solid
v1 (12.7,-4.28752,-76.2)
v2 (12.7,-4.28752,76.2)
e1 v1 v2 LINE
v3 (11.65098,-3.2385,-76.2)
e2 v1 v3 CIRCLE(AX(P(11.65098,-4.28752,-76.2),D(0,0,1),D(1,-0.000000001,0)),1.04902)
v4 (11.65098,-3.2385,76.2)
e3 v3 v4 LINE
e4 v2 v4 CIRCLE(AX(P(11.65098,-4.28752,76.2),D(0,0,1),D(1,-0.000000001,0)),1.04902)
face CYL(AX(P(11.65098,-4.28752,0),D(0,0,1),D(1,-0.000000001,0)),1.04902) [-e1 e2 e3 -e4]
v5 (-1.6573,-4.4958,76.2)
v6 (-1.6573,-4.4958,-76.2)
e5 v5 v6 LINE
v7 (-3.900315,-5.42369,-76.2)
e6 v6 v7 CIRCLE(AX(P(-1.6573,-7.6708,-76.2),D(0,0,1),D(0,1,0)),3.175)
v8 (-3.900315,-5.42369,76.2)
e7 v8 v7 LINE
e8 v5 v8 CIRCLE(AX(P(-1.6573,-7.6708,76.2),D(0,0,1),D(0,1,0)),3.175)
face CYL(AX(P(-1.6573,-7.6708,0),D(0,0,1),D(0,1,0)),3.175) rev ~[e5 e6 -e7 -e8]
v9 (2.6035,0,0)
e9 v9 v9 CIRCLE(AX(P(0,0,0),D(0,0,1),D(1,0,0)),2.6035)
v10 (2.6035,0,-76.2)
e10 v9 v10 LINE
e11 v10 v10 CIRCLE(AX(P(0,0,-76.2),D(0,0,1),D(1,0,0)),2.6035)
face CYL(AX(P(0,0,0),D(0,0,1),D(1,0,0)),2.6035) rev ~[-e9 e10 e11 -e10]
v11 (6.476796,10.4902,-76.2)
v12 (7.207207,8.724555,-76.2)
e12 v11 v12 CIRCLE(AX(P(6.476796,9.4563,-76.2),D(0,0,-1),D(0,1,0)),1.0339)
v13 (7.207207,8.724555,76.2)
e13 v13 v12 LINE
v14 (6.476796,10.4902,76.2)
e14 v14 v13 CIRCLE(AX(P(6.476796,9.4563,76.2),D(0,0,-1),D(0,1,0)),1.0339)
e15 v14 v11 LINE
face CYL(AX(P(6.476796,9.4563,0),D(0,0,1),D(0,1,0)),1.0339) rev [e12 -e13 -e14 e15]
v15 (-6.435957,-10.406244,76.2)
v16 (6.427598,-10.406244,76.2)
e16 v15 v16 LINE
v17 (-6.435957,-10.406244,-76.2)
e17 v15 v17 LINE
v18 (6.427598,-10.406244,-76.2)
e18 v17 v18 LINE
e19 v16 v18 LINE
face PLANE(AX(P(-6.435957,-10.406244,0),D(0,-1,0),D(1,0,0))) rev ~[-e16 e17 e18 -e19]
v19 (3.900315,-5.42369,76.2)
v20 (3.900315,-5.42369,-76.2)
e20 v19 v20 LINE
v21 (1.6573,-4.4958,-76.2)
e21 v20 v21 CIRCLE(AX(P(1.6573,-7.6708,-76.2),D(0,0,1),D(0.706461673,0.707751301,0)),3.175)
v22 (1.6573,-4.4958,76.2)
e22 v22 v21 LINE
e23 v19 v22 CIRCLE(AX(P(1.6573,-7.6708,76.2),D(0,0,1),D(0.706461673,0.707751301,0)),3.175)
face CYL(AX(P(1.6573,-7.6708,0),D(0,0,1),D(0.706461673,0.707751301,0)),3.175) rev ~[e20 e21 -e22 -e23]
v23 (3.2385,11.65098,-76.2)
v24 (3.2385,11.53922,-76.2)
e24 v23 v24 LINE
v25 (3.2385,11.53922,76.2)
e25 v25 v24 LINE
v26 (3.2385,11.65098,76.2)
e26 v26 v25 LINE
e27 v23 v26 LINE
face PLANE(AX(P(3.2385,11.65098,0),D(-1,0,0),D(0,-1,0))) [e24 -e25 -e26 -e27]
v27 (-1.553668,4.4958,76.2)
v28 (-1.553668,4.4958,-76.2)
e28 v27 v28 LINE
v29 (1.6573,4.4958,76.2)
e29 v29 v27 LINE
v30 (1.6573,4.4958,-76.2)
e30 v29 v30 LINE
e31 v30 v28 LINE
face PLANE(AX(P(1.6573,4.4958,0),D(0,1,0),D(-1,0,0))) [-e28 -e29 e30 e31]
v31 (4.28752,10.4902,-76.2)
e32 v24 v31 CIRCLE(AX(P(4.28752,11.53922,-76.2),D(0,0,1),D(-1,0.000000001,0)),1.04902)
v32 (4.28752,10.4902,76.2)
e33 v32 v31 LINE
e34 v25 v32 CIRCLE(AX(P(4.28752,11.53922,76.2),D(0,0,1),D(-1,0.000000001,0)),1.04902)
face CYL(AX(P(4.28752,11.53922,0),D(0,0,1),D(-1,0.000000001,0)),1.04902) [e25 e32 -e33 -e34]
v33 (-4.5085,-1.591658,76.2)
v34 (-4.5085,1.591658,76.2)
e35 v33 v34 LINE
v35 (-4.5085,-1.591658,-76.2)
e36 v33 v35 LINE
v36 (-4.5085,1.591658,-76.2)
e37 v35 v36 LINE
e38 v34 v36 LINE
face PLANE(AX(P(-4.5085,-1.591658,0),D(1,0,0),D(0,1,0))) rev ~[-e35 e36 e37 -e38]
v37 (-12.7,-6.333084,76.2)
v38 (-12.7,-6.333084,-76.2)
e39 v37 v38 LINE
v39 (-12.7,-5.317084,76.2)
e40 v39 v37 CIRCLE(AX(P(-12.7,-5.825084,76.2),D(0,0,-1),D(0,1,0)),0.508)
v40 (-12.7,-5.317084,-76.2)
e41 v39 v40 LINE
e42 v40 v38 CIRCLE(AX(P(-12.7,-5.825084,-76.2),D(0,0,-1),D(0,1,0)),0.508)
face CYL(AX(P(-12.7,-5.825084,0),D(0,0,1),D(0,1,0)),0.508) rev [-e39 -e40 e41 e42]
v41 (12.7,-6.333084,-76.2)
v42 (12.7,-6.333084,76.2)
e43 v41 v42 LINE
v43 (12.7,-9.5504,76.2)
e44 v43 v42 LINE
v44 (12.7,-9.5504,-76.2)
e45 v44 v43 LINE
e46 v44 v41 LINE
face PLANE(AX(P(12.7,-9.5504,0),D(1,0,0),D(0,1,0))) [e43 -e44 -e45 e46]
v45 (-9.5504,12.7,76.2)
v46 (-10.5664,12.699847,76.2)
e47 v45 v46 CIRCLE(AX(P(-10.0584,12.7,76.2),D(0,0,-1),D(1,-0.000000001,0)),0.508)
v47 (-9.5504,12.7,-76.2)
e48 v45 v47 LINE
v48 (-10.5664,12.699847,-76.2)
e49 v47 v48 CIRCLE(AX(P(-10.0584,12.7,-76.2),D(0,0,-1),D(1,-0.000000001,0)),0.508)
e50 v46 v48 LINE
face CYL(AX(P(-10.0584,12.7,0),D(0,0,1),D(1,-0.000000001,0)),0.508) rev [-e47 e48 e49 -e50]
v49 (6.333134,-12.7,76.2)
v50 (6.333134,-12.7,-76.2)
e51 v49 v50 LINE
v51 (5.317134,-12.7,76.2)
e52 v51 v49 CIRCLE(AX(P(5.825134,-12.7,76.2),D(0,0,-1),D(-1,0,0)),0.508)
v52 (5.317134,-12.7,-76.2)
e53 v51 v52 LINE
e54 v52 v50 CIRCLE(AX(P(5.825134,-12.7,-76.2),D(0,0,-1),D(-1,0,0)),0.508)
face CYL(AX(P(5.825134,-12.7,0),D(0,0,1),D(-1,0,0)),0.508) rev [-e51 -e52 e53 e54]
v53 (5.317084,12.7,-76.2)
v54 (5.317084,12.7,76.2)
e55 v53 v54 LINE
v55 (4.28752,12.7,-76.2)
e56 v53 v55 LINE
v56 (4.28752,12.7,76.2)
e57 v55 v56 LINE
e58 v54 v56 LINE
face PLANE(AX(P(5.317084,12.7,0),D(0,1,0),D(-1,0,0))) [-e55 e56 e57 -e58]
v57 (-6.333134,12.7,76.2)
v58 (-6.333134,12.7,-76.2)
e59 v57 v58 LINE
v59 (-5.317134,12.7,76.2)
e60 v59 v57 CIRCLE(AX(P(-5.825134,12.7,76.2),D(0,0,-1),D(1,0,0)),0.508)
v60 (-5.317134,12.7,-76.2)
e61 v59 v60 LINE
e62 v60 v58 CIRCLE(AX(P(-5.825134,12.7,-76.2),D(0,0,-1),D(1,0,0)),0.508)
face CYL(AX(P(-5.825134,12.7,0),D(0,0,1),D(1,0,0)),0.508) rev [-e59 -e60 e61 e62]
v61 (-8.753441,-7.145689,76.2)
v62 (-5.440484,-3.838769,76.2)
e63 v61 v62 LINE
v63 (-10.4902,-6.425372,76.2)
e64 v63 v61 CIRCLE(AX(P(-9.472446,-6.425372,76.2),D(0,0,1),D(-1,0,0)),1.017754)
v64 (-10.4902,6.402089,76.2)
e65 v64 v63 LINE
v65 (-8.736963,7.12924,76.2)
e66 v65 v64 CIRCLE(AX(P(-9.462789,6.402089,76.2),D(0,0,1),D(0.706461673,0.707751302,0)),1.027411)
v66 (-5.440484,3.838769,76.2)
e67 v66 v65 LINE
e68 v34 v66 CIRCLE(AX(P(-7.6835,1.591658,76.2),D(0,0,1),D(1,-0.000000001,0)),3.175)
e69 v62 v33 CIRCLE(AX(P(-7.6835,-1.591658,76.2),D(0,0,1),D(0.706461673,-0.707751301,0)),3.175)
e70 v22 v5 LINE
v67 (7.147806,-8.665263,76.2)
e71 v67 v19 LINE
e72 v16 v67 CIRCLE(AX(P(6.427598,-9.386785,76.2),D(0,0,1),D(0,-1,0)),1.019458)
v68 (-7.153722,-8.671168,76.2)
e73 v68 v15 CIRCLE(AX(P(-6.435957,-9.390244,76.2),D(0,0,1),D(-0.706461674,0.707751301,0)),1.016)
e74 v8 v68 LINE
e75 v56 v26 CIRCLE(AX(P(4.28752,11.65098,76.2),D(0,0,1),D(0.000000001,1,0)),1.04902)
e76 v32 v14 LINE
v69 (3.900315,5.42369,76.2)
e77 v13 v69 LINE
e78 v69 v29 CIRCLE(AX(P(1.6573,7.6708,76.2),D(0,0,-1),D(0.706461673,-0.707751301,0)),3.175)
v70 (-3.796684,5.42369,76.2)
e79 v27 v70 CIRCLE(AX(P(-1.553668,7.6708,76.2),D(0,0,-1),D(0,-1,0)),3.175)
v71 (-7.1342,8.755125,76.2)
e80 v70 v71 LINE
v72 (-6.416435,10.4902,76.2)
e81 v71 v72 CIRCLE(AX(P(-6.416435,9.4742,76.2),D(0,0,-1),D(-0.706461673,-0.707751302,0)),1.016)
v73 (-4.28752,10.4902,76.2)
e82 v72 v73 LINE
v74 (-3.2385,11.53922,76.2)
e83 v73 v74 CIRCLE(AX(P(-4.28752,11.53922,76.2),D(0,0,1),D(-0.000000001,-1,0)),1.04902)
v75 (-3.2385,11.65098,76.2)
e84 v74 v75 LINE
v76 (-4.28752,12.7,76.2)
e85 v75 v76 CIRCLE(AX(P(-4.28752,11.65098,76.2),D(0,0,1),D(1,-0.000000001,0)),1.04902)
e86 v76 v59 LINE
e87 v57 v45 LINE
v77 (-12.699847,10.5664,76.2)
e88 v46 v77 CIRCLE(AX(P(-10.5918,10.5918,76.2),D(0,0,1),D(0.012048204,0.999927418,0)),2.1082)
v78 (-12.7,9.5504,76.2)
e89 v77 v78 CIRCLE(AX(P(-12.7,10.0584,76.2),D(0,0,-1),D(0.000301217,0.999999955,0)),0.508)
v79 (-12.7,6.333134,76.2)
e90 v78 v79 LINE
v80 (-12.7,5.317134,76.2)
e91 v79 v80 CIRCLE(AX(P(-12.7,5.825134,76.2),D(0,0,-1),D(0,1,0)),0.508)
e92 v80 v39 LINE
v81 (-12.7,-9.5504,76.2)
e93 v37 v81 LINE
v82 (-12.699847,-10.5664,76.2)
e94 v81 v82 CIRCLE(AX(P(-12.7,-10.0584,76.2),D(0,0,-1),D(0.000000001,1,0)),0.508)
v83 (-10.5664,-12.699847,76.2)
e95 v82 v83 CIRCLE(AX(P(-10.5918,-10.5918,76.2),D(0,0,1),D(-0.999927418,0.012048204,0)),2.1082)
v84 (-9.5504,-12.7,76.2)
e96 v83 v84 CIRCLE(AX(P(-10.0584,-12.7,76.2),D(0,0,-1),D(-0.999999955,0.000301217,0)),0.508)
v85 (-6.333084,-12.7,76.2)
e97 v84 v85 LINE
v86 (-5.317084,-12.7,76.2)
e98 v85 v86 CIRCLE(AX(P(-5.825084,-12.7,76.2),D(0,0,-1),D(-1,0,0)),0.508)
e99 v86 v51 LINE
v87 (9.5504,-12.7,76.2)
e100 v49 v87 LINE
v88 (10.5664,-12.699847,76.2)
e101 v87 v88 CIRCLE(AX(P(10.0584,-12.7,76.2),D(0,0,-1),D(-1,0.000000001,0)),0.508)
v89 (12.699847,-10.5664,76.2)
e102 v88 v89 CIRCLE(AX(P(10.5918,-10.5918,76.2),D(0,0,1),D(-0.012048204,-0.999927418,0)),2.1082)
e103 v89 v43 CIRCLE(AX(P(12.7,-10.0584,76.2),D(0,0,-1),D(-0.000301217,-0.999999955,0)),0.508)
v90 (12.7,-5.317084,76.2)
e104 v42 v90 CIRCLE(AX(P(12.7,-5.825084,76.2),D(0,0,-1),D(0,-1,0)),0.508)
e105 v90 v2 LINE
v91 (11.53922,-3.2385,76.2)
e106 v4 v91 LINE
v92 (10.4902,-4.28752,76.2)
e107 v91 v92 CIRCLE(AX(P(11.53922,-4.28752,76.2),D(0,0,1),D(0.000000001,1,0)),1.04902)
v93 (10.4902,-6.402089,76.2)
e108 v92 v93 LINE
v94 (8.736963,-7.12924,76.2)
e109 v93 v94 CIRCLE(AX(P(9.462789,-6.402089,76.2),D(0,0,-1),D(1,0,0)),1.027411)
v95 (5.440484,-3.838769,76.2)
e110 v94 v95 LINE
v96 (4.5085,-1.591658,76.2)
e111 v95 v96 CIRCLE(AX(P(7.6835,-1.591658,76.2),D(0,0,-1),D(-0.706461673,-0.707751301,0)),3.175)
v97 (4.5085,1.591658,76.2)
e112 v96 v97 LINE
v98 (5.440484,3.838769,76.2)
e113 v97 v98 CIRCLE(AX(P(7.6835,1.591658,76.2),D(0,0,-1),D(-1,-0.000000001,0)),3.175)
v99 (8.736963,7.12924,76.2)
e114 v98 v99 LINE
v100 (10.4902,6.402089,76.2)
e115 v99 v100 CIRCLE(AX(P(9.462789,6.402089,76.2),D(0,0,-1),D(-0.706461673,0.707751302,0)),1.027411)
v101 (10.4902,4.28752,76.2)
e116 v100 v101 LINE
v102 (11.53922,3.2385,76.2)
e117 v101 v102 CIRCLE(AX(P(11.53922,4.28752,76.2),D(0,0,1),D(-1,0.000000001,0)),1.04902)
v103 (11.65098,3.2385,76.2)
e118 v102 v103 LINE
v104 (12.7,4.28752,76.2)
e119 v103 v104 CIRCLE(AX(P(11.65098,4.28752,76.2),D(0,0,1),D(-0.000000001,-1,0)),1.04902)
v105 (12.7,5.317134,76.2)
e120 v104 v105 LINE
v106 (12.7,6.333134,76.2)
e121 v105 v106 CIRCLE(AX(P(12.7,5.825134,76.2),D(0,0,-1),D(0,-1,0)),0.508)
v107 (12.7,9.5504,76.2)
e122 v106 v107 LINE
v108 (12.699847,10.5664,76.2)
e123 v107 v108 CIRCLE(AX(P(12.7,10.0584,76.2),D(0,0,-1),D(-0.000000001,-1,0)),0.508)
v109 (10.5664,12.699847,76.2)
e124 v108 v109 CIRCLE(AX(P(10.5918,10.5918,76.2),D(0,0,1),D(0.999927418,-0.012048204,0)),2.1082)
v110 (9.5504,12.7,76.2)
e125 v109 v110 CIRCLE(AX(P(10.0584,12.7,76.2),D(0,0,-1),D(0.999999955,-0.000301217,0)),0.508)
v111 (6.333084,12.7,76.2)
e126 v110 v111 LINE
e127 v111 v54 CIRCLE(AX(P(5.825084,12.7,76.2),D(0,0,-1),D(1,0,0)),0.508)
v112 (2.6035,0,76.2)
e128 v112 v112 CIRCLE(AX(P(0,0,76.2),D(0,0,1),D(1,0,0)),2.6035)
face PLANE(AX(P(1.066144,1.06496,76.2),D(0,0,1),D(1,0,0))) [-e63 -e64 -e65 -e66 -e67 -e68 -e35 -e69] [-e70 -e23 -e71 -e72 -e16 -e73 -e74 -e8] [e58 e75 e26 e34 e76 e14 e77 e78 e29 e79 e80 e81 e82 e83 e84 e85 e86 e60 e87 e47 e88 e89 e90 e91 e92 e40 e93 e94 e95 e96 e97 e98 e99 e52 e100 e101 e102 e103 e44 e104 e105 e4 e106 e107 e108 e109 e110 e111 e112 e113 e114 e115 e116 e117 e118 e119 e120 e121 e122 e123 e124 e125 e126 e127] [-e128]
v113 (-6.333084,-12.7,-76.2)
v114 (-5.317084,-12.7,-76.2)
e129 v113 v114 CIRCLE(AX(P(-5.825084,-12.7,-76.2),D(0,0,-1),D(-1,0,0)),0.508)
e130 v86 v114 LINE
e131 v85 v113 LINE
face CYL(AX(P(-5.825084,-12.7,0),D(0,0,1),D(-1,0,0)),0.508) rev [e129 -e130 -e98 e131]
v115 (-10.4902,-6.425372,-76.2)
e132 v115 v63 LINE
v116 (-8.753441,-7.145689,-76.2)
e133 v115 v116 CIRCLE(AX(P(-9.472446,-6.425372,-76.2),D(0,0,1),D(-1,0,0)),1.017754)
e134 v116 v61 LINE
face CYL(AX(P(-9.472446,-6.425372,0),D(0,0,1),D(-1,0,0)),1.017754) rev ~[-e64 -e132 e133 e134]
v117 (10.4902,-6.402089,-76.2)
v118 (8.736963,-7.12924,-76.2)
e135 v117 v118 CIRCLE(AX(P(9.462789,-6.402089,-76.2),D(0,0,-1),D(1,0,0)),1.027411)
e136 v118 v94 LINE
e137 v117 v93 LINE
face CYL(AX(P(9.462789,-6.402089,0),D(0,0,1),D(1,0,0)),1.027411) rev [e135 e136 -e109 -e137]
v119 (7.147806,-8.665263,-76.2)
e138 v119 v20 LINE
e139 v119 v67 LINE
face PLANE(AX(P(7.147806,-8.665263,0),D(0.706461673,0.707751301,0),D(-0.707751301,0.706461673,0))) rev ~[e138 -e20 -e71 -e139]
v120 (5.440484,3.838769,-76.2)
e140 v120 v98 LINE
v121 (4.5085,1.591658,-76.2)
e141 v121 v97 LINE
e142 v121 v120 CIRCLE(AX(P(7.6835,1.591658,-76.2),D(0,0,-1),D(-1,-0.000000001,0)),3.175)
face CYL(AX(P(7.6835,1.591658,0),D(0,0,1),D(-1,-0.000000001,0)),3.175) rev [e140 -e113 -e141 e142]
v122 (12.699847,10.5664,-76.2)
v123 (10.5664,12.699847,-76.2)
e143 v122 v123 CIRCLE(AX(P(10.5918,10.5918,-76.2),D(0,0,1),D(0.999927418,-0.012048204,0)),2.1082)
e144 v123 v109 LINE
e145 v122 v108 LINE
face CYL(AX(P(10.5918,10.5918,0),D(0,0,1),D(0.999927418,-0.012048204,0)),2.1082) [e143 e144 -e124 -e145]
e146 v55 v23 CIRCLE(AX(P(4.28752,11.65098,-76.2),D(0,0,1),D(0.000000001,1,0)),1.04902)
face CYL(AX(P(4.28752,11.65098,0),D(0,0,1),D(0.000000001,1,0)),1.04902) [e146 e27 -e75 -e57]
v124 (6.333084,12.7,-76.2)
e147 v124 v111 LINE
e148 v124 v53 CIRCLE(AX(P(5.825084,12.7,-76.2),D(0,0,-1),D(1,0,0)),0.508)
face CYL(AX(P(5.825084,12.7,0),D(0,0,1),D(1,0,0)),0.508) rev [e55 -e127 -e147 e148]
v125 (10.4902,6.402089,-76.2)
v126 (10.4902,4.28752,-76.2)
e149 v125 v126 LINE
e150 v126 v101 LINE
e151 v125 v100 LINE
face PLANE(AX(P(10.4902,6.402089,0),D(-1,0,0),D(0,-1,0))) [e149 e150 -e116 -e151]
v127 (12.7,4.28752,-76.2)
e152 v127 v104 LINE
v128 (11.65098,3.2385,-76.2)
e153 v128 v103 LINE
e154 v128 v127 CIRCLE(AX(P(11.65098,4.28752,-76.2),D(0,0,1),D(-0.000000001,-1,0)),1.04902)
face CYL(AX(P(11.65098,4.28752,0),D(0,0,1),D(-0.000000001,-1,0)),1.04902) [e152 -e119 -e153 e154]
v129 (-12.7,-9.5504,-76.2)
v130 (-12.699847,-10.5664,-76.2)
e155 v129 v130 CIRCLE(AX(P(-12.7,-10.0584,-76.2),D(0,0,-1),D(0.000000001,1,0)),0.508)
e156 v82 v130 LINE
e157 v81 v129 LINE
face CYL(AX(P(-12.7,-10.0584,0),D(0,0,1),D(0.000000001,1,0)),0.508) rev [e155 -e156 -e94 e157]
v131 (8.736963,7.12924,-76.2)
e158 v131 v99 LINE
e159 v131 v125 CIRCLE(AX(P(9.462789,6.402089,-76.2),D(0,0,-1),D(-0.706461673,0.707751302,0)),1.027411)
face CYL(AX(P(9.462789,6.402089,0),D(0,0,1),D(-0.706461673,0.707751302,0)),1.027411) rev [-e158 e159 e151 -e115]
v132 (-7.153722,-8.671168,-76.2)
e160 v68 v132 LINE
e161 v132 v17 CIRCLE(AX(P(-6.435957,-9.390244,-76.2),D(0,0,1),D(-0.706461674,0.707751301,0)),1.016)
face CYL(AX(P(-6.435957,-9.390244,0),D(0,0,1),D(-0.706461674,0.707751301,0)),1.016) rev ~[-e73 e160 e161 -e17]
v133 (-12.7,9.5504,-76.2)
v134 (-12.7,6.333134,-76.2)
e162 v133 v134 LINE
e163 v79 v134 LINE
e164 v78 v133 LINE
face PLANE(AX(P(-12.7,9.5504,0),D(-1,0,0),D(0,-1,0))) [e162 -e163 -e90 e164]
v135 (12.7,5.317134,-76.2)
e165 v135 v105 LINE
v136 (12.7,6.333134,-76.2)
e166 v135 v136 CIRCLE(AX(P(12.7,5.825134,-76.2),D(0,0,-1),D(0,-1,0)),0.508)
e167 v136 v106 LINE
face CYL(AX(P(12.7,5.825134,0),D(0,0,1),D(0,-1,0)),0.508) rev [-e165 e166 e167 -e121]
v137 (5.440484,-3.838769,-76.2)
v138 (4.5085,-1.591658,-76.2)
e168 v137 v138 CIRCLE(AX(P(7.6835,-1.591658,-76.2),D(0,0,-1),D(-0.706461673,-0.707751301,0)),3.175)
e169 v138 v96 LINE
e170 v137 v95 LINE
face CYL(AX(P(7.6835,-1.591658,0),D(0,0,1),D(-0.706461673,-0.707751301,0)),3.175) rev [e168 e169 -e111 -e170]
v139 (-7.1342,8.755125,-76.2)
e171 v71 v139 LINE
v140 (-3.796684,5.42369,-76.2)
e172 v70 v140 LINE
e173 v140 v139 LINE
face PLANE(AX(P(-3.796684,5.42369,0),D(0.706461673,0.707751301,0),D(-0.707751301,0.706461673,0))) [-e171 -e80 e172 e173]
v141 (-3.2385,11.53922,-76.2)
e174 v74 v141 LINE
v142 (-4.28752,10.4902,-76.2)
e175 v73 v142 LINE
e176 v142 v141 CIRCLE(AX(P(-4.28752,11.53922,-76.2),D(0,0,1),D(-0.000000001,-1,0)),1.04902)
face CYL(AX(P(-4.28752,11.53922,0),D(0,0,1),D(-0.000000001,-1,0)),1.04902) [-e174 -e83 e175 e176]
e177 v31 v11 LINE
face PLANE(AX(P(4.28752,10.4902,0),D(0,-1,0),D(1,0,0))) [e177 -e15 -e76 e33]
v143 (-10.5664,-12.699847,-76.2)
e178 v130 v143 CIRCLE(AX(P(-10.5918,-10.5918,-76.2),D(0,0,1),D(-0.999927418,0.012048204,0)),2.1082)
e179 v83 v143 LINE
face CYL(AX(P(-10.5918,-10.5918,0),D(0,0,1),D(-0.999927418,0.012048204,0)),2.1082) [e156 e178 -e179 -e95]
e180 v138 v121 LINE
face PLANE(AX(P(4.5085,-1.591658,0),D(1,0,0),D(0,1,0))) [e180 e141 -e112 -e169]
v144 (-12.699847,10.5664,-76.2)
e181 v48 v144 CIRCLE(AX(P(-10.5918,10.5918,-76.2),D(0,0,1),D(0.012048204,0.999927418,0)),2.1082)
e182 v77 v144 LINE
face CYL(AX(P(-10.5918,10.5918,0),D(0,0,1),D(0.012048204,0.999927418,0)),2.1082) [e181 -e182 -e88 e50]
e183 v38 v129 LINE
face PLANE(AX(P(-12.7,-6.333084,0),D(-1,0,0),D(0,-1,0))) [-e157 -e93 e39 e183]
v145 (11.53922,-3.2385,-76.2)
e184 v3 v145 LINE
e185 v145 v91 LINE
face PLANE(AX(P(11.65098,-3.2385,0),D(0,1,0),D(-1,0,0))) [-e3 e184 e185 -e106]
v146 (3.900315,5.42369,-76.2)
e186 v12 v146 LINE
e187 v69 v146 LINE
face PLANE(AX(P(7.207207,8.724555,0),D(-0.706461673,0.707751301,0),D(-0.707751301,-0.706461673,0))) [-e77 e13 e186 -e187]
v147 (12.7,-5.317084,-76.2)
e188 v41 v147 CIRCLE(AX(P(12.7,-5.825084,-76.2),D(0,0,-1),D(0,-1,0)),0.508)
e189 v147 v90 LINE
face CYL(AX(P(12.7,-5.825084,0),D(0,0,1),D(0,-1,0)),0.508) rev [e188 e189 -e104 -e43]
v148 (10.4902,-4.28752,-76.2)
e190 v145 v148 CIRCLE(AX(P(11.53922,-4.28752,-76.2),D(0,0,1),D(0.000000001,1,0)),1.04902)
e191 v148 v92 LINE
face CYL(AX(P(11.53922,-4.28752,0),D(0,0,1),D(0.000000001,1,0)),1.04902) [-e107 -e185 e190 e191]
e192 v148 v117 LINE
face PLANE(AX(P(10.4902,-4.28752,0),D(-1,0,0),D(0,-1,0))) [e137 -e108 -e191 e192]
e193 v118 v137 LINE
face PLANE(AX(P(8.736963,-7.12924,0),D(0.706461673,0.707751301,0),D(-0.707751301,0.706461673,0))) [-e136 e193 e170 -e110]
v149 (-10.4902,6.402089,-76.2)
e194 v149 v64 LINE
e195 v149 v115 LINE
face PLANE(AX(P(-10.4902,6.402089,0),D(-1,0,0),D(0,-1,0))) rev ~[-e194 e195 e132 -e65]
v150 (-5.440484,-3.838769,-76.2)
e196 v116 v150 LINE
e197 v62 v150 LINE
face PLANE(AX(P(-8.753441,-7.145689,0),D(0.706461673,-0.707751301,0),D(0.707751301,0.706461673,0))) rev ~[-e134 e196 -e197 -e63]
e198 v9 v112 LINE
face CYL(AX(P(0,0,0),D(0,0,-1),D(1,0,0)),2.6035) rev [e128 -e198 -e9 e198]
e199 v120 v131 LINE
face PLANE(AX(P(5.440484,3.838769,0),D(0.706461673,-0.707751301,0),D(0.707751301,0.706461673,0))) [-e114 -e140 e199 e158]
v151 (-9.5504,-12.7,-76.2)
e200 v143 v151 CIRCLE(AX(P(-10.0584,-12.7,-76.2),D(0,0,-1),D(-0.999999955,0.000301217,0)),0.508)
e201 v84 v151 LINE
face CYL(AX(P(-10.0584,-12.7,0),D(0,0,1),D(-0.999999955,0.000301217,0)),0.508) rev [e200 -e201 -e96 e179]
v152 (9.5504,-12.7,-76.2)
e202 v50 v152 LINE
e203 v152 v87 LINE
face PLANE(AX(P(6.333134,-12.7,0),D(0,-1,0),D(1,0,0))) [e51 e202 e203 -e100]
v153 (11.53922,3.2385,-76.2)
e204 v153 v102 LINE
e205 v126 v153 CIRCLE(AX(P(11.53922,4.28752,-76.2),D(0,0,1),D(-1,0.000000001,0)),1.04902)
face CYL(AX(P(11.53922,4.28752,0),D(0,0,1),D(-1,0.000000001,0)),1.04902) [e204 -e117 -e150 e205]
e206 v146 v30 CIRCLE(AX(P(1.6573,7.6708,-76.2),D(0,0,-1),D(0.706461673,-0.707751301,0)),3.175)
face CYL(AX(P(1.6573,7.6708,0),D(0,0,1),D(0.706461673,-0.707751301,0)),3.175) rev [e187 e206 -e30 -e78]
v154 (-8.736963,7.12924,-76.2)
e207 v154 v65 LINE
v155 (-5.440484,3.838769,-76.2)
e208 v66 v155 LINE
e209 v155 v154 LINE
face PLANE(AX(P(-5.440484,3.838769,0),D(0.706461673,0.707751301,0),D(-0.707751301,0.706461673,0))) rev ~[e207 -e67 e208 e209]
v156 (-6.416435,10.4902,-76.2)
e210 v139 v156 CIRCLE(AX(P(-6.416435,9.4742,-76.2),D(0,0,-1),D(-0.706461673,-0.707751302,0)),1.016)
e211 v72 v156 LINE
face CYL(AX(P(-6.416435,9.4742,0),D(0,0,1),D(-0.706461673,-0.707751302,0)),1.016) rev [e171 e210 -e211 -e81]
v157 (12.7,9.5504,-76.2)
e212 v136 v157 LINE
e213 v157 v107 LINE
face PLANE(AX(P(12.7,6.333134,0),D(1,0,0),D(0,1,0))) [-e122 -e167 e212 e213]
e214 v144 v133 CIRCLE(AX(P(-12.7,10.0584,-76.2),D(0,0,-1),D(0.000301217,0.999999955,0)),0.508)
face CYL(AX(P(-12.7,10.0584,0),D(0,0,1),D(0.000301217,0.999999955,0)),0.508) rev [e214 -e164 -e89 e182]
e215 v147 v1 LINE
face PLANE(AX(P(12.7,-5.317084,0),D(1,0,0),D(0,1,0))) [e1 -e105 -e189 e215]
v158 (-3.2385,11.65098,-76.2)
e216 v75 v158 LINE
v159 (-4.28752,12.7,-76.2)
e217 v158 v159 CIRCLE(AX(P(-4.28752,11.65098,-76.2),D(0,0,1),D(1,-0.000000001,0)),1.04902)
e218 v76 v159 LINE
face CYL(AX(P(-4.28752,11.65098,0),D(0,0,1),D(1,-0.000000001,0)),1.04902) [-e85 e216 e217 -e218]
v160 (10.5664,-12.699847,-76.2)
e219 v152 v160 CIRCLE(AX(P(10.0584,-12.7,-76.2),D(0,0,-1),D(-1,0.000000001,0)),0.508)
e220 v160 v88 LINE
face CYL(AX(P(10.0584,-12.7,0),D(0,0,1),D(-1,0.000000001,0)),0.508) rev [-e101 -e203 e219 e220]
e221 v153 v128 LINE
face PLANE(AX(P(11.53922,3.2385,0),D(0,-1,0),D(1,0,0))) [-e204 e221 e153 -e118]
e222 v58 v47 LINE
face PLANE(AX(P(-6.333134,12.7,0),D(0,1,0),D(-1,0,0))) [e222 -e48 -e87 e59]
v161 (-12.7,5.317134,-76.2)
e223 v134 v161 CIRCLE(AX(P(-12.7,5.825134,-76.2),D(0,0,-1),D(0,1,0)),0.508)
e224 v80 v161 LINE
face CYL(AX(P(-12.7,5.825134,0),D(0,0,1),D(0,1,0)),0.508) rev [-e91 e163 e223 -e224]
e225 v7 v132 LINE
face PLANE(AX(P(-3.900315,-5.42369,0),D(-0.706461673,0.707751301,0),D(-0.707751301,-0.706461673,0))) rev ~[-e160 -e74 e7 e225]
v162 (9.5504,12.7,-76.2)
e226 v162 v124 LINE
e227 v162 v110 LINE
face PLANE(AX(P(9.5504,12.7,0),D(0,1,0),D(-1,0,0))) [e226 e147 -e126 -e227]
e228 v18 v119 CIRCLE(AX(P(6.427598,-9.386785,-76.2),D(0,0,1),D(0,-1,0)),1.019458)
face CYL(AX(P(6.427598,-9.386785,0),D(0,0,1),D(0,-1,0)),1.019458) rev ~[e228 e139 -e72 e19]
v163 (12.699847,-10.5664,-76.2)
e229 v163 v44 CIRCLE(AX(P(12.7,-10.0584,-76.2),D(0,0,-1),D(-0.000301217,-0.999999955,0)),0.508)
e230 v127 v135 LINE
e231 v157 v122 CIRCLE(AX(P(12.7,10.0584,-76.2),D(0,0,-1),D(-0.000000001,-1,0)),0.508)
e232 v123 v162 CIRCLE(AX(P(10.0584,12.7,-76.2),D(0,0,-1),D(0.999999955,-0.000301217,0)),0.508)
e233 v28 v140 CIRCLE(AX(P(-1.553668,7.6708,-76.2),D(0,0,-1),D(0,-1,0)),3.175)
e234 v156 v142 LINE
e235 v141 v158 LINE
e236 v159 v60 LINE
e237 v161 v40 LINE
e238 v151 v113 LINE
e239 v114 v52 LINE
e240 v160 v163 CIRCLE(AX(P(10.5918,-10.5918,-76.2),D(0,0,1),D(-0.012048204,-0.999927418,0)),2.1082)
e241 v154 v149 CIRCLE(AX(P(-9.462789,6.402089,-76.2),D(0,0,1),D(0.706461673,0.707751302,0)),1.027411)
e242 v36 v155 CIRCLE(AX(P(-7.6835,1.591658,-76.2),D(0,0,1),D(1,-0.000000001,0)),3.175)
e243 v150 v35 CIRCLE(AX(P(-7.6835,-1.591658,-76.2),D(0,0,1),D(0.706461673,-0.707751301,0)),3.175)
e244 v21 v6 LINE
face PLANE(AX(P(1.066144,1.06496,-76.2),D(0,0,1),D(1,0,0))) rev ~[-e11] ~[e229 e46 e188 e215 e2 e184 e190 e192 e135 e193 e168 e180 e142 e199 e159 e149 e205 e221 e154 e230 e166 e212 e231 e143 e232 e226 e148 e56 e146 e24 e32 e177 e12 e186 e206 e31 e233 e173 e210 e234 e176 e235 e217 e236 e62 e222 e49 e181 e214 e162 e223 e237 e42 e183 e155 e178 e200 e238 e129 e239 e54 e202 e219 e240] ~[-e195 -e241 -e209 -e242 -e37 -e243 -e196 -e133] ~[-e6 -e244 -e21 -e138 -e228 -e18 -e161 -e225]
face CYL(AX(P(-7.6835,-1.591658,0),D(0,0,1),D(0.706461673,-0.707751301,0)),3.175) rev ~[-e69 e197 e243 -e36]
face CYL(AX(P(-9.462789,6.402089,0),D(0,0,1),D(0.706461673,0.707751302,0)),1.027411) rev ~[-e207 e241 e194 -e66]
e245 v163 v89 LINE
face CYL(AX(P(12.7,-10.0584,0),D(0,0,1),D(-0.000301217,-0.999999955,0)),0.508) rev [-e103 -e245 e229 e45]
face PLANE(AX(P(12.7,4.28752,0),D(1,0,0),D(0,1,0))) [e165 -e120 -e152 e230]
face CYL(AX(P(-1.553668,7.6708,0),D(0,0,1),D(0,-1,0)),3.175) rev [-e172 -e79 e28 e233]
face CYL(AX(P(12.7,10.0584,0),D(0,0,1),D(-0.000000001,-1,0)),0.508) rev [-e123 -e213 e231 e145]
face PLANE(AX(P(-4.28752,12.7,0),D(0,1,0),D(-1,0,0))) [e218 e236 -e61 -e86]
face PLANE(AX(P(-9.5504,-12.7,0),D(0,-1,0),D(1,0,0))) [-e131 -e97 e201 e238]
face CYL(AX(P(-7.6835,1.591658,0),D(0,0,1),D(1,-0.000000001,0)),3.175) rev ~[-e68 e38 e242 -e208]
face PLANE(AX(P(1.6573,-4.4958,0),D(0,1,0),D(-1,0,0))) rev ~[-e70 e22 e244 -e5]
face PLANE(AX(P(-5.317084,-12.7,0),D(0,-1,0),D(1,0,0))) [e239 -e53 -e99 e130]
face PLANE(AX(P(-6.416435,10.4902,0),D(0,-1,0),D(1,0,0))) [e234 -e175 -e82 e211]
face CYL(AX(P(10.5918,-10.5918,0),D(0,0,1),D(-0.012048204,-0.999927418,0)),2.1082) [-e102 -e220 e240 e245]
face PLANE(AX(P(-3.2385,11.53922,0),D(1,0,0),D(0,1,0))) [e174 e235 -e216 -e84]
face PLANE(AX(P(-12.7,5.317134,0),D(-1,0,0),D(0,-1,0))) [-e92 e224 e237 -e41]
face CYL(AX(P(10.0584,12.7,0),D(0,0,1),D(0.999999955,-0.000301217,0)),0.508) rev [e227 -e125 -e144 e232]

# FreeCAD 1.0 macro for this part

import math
import FreeCAD as App
import Part
import Sketcher
Q = App.Units.Quantity

doc = App.newDocument("Part")
body = doc.addObject("PartDesign::Body", "Body")

# Sketch on XY plane
sketch1 = body.newObject("Sketcher::SketchObject", "Sketch")
sketch1.AttachmentSupport = (doc.getObject("XY_Plane"), [""])
sketch1.MapMode = "FlatFace"
sketch1.addGeometry([
    Part.LineSegment(App.Vector(6.33, -12.7, 0), App.Vector(9.55, -12.7, 0)),  # 0
    Part.ArcOfCircle(Part.Circle(App.Vector(10.06, -12.7, 0), App.Vector(0, 0, 1), 0.51), math.radians(0), math.radians(180)),  # 1
    Part.ArcOfCircle(Part.Circle(App.Vector(10.59, -10.59, 0), App.Vector(0, 0, 1), 2.11), math.radians(-91), math.radians(1)),  # 2
    Part.ArcOfCircle(Part.Circle(App.Vector(12.7, -10.06, 0), App.Vector(0, 0, 1), 0.51), math.radians(90), math.radians(270)),  # 3
    Part.LineSegment(App.Vector(12.7, -9.55, 0), App.Vector(12.7, -6.33, 0)),  # 4
    Part.ArcOfCircle(Part.Circle(App.Vector(12.7, -5.83, 0), App.Vector(0, 0, 1), 0.51), math.radians(90), math.radians(270)),  # 5
    Part.LineSegment(App.Vector(12.7, -5.32, 0), App.Vector(12.7, -4.29, 0)),  # 6
    Part.ArcOfCircle(Part.Circle(App.Vector(11.65, -4.29, 0), App.Vector(0, 0, 1), 1.05), math.radians(0), math.radians(90)),  # 7
    Part.LineSegment(App.Vector(11.65, -3.24, 0), App.Vector(11.54, -3.24, 0)),  # 8
    Part.ArcOfCircle(Part.Circle(App.Vector(11.54, -4.29, 0), App.Vector(0, 0, 1), 1.05), math.radians(90), math.radians(180)),  # 9
    Part.LineSegment(App.Vector(10.49, -4.29, 0), App.Vector(10.49, -6.4, 0)),  # 10
    Part.ArcOfCircle(Part.Circle(App.Vector(9.46, -6.4, 0), App.Vector(0, 0, 1), 1.03), math.radians(-135), math.radians(0)),  # 11
    Part.LineSegment(App.Vector(8.74, -7.13, 0), App.Vector(5.44, -3.84, 0)),  # 12
    Part.ArcOfCircle(Part.Circle(App.Vector(7.68, -1.59, 0), App.Vector(0, 0, 1), 3.17), math.radians(180), math.radians(225)),  # 13
    Part.LineSegment(App.Vector(4.51, -1.59, 0), App.Vector(4.51, 1.59, 0)),  # 14
    Part.ArcOfCircle(Part.Circle(App.Vector(7.68, 1.59, 0), App.Vector(0, 0, 1), 3.17), math.radians(135), math.radians(180)),  # 15
    Part.LineSegment(App.Vector(5.44, 3.84, 0), App.Vector(8.74, 7.13, 0)),  # 16
    Part.ArcOfCircle(Part.Circle(App.Vector(9.46, 6.4, 0), App.Vector(0, 0, 1), 1.03), math.radians(0), math.radians(135)),  # 17
    Part.LineSegment(App.Vector(10.49, 6.4, 0), App.Vector(10.49, 4.29, 0)),  # 18
    Part.ArcOfCircle(Part.Circle(App.Vector(11.54, 4.29, 0), App.Vector(0, 0, 1), 1.05), math.radians(180), math.radians(270)),  # 19
    Part.LineSegment(App.Vector(11.54, 3.24, 0), App.Vector(11.65, 3.24, 0)),  # 20
    Part.ArcOfCircle(Part.Circle(App.Vector(11.65, 4.29, 0), App.Vector(0, 0, 1), 1.05), math.radians(-90), math.radians(0)),  # 21
    Part.LineSegment(App.Vector(12.7, 4.29, 0), App.Vector(12.7, 5.32, 0)),  # 22
    Part.ArcOfCircle(Part.Circle(App.Vector(12.7, 5.83, 0), App.Vector(0, 0, 1), 0.51), math.radians(90), math.radians(270)),  # 23
    Part.LineSegment(App.Vector(12.7, 6.33, 0), App.Vector(12.7, 9.55, 0)),  # 24
    Part.ArcOfCircle(Part.Circle(App.Vector(12.7, 10.06, 0), App.Vector(0, 0, 1), 0.51), math.radians(90), math.radians(270)),  # 25
    Part.ArcOfCircle(Part.Circle(App.Vector(10.59, 10.59, 0), App.Vector(0, 0, 1), 2.11), math.radians(-1), math.radians(91)),  # 26
    Part.ArcOfCircle(Part.Circle(App.Vector(10.06, 12.7, 0), App.Vector(0, 0, 1), 0.51), math.radians(180), math.radians(360)),  # 27
    Part.LineSegment(App.Vector(9.55, 12.7, 0), App.Vector(6.33, 12.7, 0)),  # 28
    Part.ArcOfCircle(Part.Circle(App.Vector(5.83, 12.7, 0), App.Vector(0, 0, 1), 0.51), math.radians(180), math.radians(360)),  # 29
    Part.LineSegment(App.Vector(5.32, 12.7, 0), App.Vector(4.29, 12.7, 0)),  # 30
    Part.ArcOfCircle(Part.Circle(App.Vector(4.29, 11.65, 0), App.Vector(0, 0, 1), 1.05), math.radians(90), math.radians(180)),  # 31
    Part.LineSegment(App.Vector(3.24, 11.65, 0), App.Vector(3.24, 11.54, 0)),  # 32
    Part.ArcOfCircle(Part.Circle(App.Vector(4.29, 11.54, 0), App.Vector(0, 0, 1), 1.05), math.radians(180), math.radians(270)),  # 33
    Part.LineSegment(App.Vector(4.29, 10.49, 0), App.Vector(6.48, 10.49, 0)),  # 34
    Part.ArcOfCircle(Part.Circle(App.Vector(6.48, 9.46, 0), App.Vector(0, 0, 1), 1.03), math.radians(-45), math.radians(90)),  # 35
    Part.LineSegment(App.Vector(7.21, 8.72, 0), App.Vector(3.9, 5.42, 0)),  # 36
    Part.ArcOfCircle(Part.Circle(App.Vector(1.66, 7.67, 0), App.Vector(0, 0, 1), 3.17), math.radians(-90), math.radians(-45)),  # 37
    Part.LineSegment(App.Vector(1.66, 4.5, 0), App.Vector(-1.55, 4.5, 0)),  # 38
    Part.ArcOfCircle(Part.Circle(App.Vector(-1.55, 7.67, 0), App.Vector(0, 0, 1), 3.17), math.radians(-135), math.radians(-90)),  # 39
    Part.LineSegment(App.Vector(-3.8, 5.42, 0), App.Vector(-7.13, 8.76, 0)),  # 40
    Part.ArcOfCircle(Part.Circle(App.Vector(-6.42, 9.47, 0), App.Vector(0, 0, 1), 1.02), math.radians(90), math.radians(225)),  # 41
    Part.LineSegment(App.Vector(-6.42, 10.49, 0), App.Vector(-4.29, 10.49, 0)),  # 42
    Part.ArcOfCircle(Part.Circle(App.Vector(-4.29, 11.54, 0), App.Vector(0, 0, 1), 1.05), math.radians(-90), math.radians(0)),  # 43
    Part.LineSegment(App.Vector(-3.24, 11.54, 0), App.Vector(-3.24, 11.65, 0)),  # 44
    Part.ArcOfCircle(Part.Circle(App.Vector(-4.29, 11.65, 0), App.Vector(0, 0, 1), 1.05), math.radians(0), math.radians(90)),  # 45
    Part.LineSegment(App.Vector(-4.29, 12.7, 0), App.Vector(-5.32, 12.7, 0)),  # 46
    Part.ArcOfCircle(Part.Circle(App.Vector(-5.83, 12.7, 0), App.Vector(0, 0, 1), 0.51), math.radians(180), math.radians(360)),  # 47
    Part.LineSegment(App.Vector(-6.33, 12.7, 0), App.Vector(-9.55, 12.7, 0)),  # 48
    Part.ArcOfCircle(Part.Circle(App.Vector(-10.06, 12.7, 0), App.Vector(0, 0, 1), 0.51), math.radians(-180), math.radians(0)),  # 49
    Part.ArcOfCircle(Part.Circle(App.Vector(-10.59, 10.59, 0), App.Vector(0, 0, 1), 2.11), math.radians(89), math.radians(181)),  # 50
    Part.ArcOfCircle(Part.Circle(App.Vector(-12.7, 10.06, 0), App.Vector(0, 0, 1), 0.51), math.radians(-90), math.radians(90)),  # 51
    Part.LineSegment(App.Vector(-12.7, 9.55, 0), App.Vector(-12.7, 6.33, 0)),  # 52
    Part.ArcOfCircle(Part.Circle(App.Vector(-12.7, 5.83, 0), App.Vector(0, 0, 1), 0.51), math.radians(-90), math.radians(90)),  # 53
    Part.LineSegment(App.Vector(-12.7, 5.32, 0), App.Vector(-12.7, -5.32, 0)),  # 54
    Part.ArcOfCircle(Part.Circle(App.Vector(-12.7, -5.83, 0), App.Vector(0, 0, 1), 0.51), math.radians(-90), math.radians(90)),  # 55
    Part.LineSegment(App.Vector(-12.7, -6.33, 0), App.Vector(-12.7, -9.55, 0)),  # 56
    Part.ArcOfCircle(Part.Circle(App.Vector(-12.7, -10.06, 0), App.Vector(0, 0, 1), 0.51), math.radians(-90), math.radians(90)),  # 57
    Part.ArcOfCircle(Part.Circle(App.Vector(-10.59, -10.59, 0), App.Vector(0, 0, 1), 2.11), math.radians(179), math.radians(271)),  # 58
    Part.ArcOfCircle(Part.Circle(App.Vector(-10.06, -12.7, 0), App.Vector(0, 0, 1), 0.51), math.radians(0), math.radians(180)),  # 59
    Part.LineSegment(App.Vector(-9.55, -12.7, 0), App.Vector(-6.33, -12.7, 0)),  # 60
    Part.ArcOfCircle(Part.Circle(App.Vector(-5.83, -12.7, 0), App.Vector(0, 0, 1), 0.51), math.radians(0), math.radians(180)),  # 61
    Part.LineSegment(App.Vector(-5.32, -12.7, 0), App.Vector(5.32, -12.7, 0)),  # 62
    Part.ArcOfCircle(Part.Circle(App.Vector(5.83, -12.7, 0), App.Vector(0, 0, 1), 0.51), math.radians(0), math.radians(180)),  # 63
    Part.LineSegment(App.Vector(3.9, -5.42, 0), App.Vector(7.15, -8.67, 0)),  # 64
    Part.ArcOfCircle(Part.Circle(App.Vector(6.43, -9.39, 0), App.Vector(0, 0, 1), 1.02), math.radians(-90), math.radians(45)),  # 65
    Part.LineSegment(App.Vector(6.43, -10.41, 0), App.Vector(-6.44, -10.41, 0)),  # 66
    Part.ArcOfCircle(Part.Circle(App.Vector(-6.44, -9.39, 0), App.Vector(0, 0, 1), 1.02), math.radians(135), math.radians(270)),  # 67
    Part.LineSegment(App.Vector(-7.15, -8.67, 0), App.Vector(-3.9, -5.42, 0)),  # 68
    Part.ArcOfCircle(Part.Circle(App.Vector(-1.66, -7.67, 0), App.Vector(0, 0, 1), 3.17), math.radians(90), math.radians(135)),  # 69
    Part.LineSegment(App.Vector(-1.66, -4.5, 0), App.Vector(1.66, -4.5, 0)),  # 70
    Part.ArcOfCircle(Part.Circle(App.Vector(1.66, -7.67, 0), App.Vector(0, 0, 1), 3.17), math.radians(45), math.radians(90)),  # 71
    Part.LineSegment(App.Vector(-5.44, -3.84, 0), App.Vector(-8.75, -7.15, 0)),  # 72
    Part.ArcOfCircle(Part.Circle(App.Vector(-9.47, -6.43, 0), App.Vector(0, 0, 1), 1.02), math.radians(180), math.radians(315)),  # 73
    Part.LineSegment(App.Vector(-10.49, -6.43, 0), App.Vector(-10.49, 6.4, 0)),  # 74
    Part.ArcOfCircle(Part.Circle(App.Vector(-9.46, 6.4, 0), App.Vector(0, 0, 1), 1.03), math.radians(45), math.radians(180)),  # 75
    Part.LineSegment(App.Vector(-8.74, 7.13, 0), App.Vector(-5.44, 3.84, 0)),  # 76
    Part.ArcOfCircle(Part.Circle(App.Vector(-7.68, 1.59, 0), App.Vector(0, 0, 1), 3.17), math.radians(0), math.radians(45)),  # 77
    Part.LineSegment(App.Vector(-4.51, 1.59, 0), App.Vector(-4.51, -1.59, 0)),  # 78
    Part.ArcOfCircle(Part.Circle(App.Vector(-7.68, -1.59, 0), App.Vector(0, 0, 1), 3.17), math.radians(-45), math.radians(0)),  # 79
    Part.Circle(App.Vector(0, 0, 0), App.Vector(0, 0, 1), 2.6),  # 80
], False)
sketch1.addConstraint([
    Sketcher.Constraint("Coincident", 0, 2, 1, 2),
    Sketcher.Constraint("Coincident", 1, 1, 2, 1),
    Sketcher.Constraint("Coincident", 2, 2, 3, 2),
    Sketcher.Constraint("Coincident", 3, 1, 4, 1),
    Sketcher.Constraint("Coincident", 4, 2, 5, 2),
    Sketcher.Constraint("Coincident", 5, 1, 6, 1),
    Sketcher.Constraint("Tangent", 6, 2, 7, 1),
    Sketcher.Constraint("Tangent", 7, 2, 8, 1),
    Sketcher.Constraint("Tangent", 8, 2, 9, 1),
    Sketcher.Constraint("Tangent", 9, 2, 10, 1),
    Sketcher.Constraint("Tangent", 10, 2, 11, 2),
    Sketcher.Constraint("Tangent", 11, 1, 12, 1),
    Sketcher.Constraint("Tangent", 12, 2, 13, 2),
    Sketcher.Constraint("Tangent", 13, 1, 14, 1),
    Sketcher.Constraint("Tangent", 14, 2, 15, 2),
    Sketcher.Constraint("Tangent", 15, 1, 16, 1),
    Sketcher.Constraint("Tangent", 16, 2, 17, 2),
    Sketcher.Constraint("Tangent", 17, 1, 18, 1),
    Sketcher.Constraint("Tangent", 18, 2, 19, 1),
    Sketcher.Constraint("Tangent", 19, 2, 20, 1),
    Sketcher.Constraint("Tangent", 20, 2, 21, 1),
    Sketcher.Constraint("Tangent", 21, 2, 22, 1),
    Sketcher.Constraint("Coincident", 22, 2, 23, 2),
    Sketcher.Constraint("Coincident", 23, 1, 24, 1),
    Sketcher.Constraint("Coincident", 24, 2, 25, 2),
    Sketcher.Constraint("Coincident", 25, 1, 26, 1),
    Sketcher.Constraint("Coincident", 26, 2, 27, 2),
    Sketcher.Constraint("Coincident", 27, 1, 28, 1),
    Sketcher.Constraint("Coincident", 28, 2, 29, 2),
    Sketcher.Constraint("Coincident", 29, 1, 30, 1),
    Sketcher.Constraint("Tangent", 30, 2, 31, 1),
    Sketcher.Constraint("Tangent", 31, 2, 32, 1),
    Sketcher.Constraint("Tangent", 32, 2, 33, 1),
    Sketcher.Constraint("Tangent", 33, 2, 34, 1),
    Sketcher.Constraint("Tangent", 34, 2, 35, 2),
    Sketcher.Constraint("Tangent", 35, 1, 36, 1),
    Sketcher.Constraint("Tangent", 36, 2, 37, 2),
    Sketcher.Constraint("Tangent", 37, 1, 38, 1),
    Sketcher.Constraint("Tangent", 38, 2, 39, 2),
    Sketcher.Constraint("Tangent", 39, 1, 40, 1),
    Sketcher.Constraint("Tangent", 40, 2, 41, 2),
    Sketcher.Constraint("Tangent", 41, 1, 42, 1),
    Sketcher.Constraint("Tangent", 42, 2, 43, 1),
    Sketcher.Constraint("Tangent", 43, 2, 44, 1),
    Sketcher.Constraint("Tangent", 44, 2, 45, 1),
    Sketcher.Constraint("Tangent", 45, 2, 46, 1),
    Sketcher.Constraint("Coincident", 46, 2, 47, 2),
    Sketcher.Constraint("Coincident", 47, 1, 48, 1),
    Sketcher.Constraint("Coincident", 48, 2, 49, 2),
    Sketcher.Constraint("Coincident", 49, 1, 50, 1),
    Sketcher.Constraint("Coincident", 50, 2, 51, 2),
    Sketcher.Constraint("Coincident", 51, 1, 52, 1),
    Sketcher.Constraint("Coincident", 52, 2, 53, 2),
    Sketcher.Constraint("Coincident", 53, 1, 54, 1),
    Sketcher.Constraint("Coincident", 54, 2, 55, 2),
    Sketcher.Constraint("Coincident", 55, 1, 56, 1),
    Sketcher.Constraint("Coincident", 56, 2, 57, 2),
    Sketcher.Constraint("Coincident", 57, 1, 58, 1),
    Sketcher.Constraint("Coincident", 58, 2, 59, 2),
    Sketcher.Constraint("Coincident", 59, 1, 60, 1),
    Sketcher.Constraint("Coincident", 60, 2, 61, 2),
    Sketcher.Constraint("Coincident", 61, 1, 62, 1),
    Sketcher.Constraint("Coincident", 62, 2, 63, 2),
    Sketcher.Constraint("Coincident", 63, 1, 0, 1),
    Sketcher.Constraint("Tangent", 64, 2, 65, 2),
    Sketcher.Constraint("Tangent", 65, 1, 66, 1),
    Sketcher.Constraint("Tangent", 66, 2, 67, 2),
    Sketcher.Constraint("Tangent", 67, 1, 68, 1),
    Sketcher.Constraint("Tangent", 68, 2, 69, 2),
    Sketcher.Constraint("Tangent", 69, 1, 70, 1),
    Sketcher.Constraint("Tangent", 70, 2, 71, 2),
    Sketcher.Constraint("Tangent", 71, 1, 64, 1),
    Sketcher.Constraint("Tangent", 72, 2, 73, 2),
    Sketcher.Constraint("Tangent", 73, 1, 74, 1),
    Sketcher.Constraint("Tangent", 74, 2, 75, 2),
    Sketcher.Constraint("Tangent", 75, 1, 76, 1),
    Sketcher.Constraint("Tangent", 76, 2, 77, 2),
    Sketcher.Constraint("Tangent", 77, 1, 78, 1),
    Sketcher.Constraint("Tangent", 78, 2, 79, 2),
    Sketcher.Constraint("Tangent", 79, 1, 72, 1),
    Sketcher.Constraint("Horizontal", 0),
    Sketcher.Constraint("Vertical", 4),
    Sketcher.Constraint("Vertical", 6),
    Sketcher.Constraint("Horizontal", 8),
    Sketcher.Constraint("Vertical", 10),
    Sketcher.Constraint("Vertical", 14),
    Sketcher.Constraint("Vertical", 18),
    Sketcher.Constraint("Horizontal", 20),
    Sketcher.Constraint("Vertical", 22),
    Sketcher.Constraint("Vertical", 24),
    Sketcher.Constraint("Horizontal", 28),
    Sketcher.Constraint("Horizontal", 30),
    Sketcher.Constraint("Vertical", 32),
    Sketcher.Constraint("Horizontal", 34),
    Sketcher.Constraint("Horizontal", 38),
    Sketcher.Constraint("Horizontal", 42),
    Sketcher.Constraint("Vertical", 44),
    Sketcher.Constraint("Horizontal", 46),
    Sketcher.Constraint("Horizontal", 48),
    Sketcher.Constraint("Vertical", 52),
    Sketcher.Constraint("Vertical", 54),
    Sketcher.Constraint("Vertical", 56),
    Sketcher.Constraint("Horizontal", 60),
    Sketcher.Constraint("Horizontal", 62),
    Sketcher.Constraint("Horizontal", 66),
    Sketcher.Constraint("Horizontal", 70),
    Sketcher.Constraint("Vertical", 74),
    Sketcher.Constraint("Vertical", 78),
    Sketcher.Constraint("Coincident", 80, 3, -1, 1),
    Sketcher.Constraint("Equal", 1, 3),
    Sketcher.Constraint("Equal", 3, 5),
    Sketcher.Constraint("Equal", 7, 9),
    Sketcher.Constraint("Equal", 13, 15),
    Sketcher.Constraint("Equal", 11, 17),
    Sketcher.Constraint("Equal", 9, 19),
    Sketcher.Constraint("Equal", 19, 21),
    Sketcher.Constraint("Equal", 5, 23),
    Sketcher.Constraint("Equal", 23, 25),
    Sketcher.Constraint("Equal", 2, 26),
    Sketcher.Constraint("Equal", 25, 27),
    Sketcher.Constraint("Equal", 27, 29),
    Sketcher.Constraint("Equal", 21, 31),
    Sketcher.Constraint("Equal", 31, 33),
    Sketcher.Constraint("Equal", 15, 37),
    Sketcher.Constraint("Equal", 37, 39),
    Sketcher.Constraint("Equal", 33, 43),
    Sketcher.Constraint("Equal", 43, 45),
    Sketcher.Constraint("Equal", 29, 47),
    Sketcher.Constraint("Equal", 47, 49),
    Sketcher.Constraint("Equal", 26, 50),
    Sketcher.Constraint("Equal", 49, 51),
    Sketcher.Constraint("Equal", 51, 53),
    Sketcher.Constraint("Equal", 53, 55),
    Sketcher.Constraint("Equal", 55, 57),
    Sketcher.Constraint("Equal", 50, 58),
    Sketcher.Constraint("Equal", 57, 59),
    Sketcher.Constraint("Equal", 59, 61),
    Sketcher.Constraint("Equal", 61, 63),
    Sketcher.Constraint("Equal", 41, 67),
    Sketcher.Constraint("Equal", 39, 69),
    Sketcher.Constraint("Equal", 69, 71),
    Sketcher.Constraint("Equal", 17, 75),
    Sketcher.Constraint("Equal", 71, 77),
    Sketcher.Constraint("Equal", 77, 79),
    Sketcher.Constraint("Symmetric", 1, 3, 49, 3, -1, 1),
    Sketcher.Constraint("Symmetric", 2, 3, 50, 3, -1, 1),
    Sketcher.Constraint("Symmetric", 3, 3, 51, 3, -1, 1),
    Sketcher.Constraint("Symmetric", 25, 3, 57, 3, -1, 1),
    Sketcher.Constraint("Symmetric", 26, 3, 58, 3, -1, 1),
    Sketcher.Constraint("Symmetric", 27, 3, 59, 3, -1, 1),
    Sketcher.Constraint("Symmetric", 29, 3, 61, 3, -1, 1),
    Sketcher.Constraint("Symmetric", 47, 3, 63, 3, -1, 1),
    Sketcher.Constraint("Symmetric", 37, 3, 69, 3, -1, 1),
    Sketcher.Constraint("Symmetric", 11, 3, 75, 3, -1, 1),
    Sketcher.Constraint("Symmetric", 13, 3, 77, 3, -1, 1),
    Sketcher.Constraint("Symmetric", 15, 1, 79, 1, -1, 1),
    Sketcher.Constraint("Symmetric", 33, 3, 43, 3, -2),
    Sketcher.Constraint("Symmetric", 27, 3, 49, 3, -2),
    Sketcher.Constraint("Symmetric", 26, 3, 50, 3, -2),
    Sketcher.Constraint("Symmetric", 25, 3, 51, 3, -2),
    Sketcher.Constraint("Symmetric", 23, 3, 53, 3, -2),
    Sketcher.Constraint("Symmetric", 5, 3, 55, 3, -2),
    Sketcher.Constraint("Symmetric", 17, 3, 75, 3, -2),
    Sketcher.Constraint("Symmetric", 68, 2, 71, 1, -2),
    Sketcher.Constraint("Symmetric", 7, 3, 21, 3, -1),
    Sketcher.Constraint("Parallel", 16, 36),
    Sketcher.Constraint("Parallel", 12, 40),
    Sketcher.Constraint("Parallel", 40, 64),
    Sketcher.Constraint("Parallel", 36, 68),
    Sketcher.Constraint("Horizontal", 27, 3, 29, 3),
    Sketcher.Constraint("Horizontal", 31, 3, 45, 3),
    Sketcher.Constraint("Horizontal", 29, 3, 47, 3),
    Sketcher.Constraint("Horizontal", 63, 3, 0, 2),
    Sketcher.Constraint("Horizontal", 49, 3, 27, 1),
    Sketcher.Constraint("Horizontal", 28, 2, 29, 1),
    Sketcher.Constraint("Horizontal", 46, 2, 47, 1),
    Sketcher.Constraint("Horizontal", 0, 2, 59, 1),
    Sketcher.Constraint("Horizontal", 60, 2, 61, 1),
    Sketcher.Constraint("Vertical", 3, 3, 5, 3),
    Sketcher.Constraint("Vertical", 5, 3, 23, 3),
    Sketcher.Constraint("Vertical", 25, 3, 3, 1),
    Sketcher.Constraint("Vertical", 4, 2, 5, 1),
    Sketcher.Constraint("Vertical", 22, 2, 23, 1),
    Sketcher.Constraint("Vertical", 57, 3, 51, 1),
    Sketcher.Constraint("Vertical", 52, 2, 53, 1),
    Sketcher.Constraint("Vertical", 54, 2, 55, 1),
    Sketcher.Constraint("Equal", 60, 4),
    Sketcher.Constraint("Equal", 30, 6),
    Sketcher.Constraint("Equal", 46, 22),
    Sketcher.Constraint("Equal", 20, 32),
    Sketcher.Constraint("Equal", 62, 54),
    Sketcher.Constraint("Radius", 1, Q("0.02 in")),
    Sketcher.Constraint("Radius", 41, Q("0.04 in")),
    Sketcher.Constraint("Diameter", 80, Q("0.205 in")),
    Sketcher.Constraint("Radius", 2, Q("0.083 in")),
    Sketcher.Constraint("Radius", 13, Q("0.125 in")),
    Sketcher.Constraint("DistanceY", 1, 3, -1, 1, Q("0.5 in")),
    Sketcher.Constraint("DistanceX", -1, 1, 3, 3, Q("0.5 in")),
    Sketcher.Constraint("Radius", 7, Q("0.0413 in")),
    Sketcher.Constraint("Radius", 35, 1.0339),
    Sketcher.Constraint("DistanceX", 8, 2, 8, 1, Q("0.0044 in")),
    Sketcher.Constraint("DistanceX", -1, 1, 1, 3, Q("0.396 in")),
    Sketcher.Constraint("DistanceX", -1, 1, 2, 3, Q("0.417 in")),
    Sketcher.Constraint("DistanceY", 2, 3, -1, 1, Q("0.417 in")),
    Sketcher.Constraint("DistanceY", -1, 1, 37, 3, Q("0.302 in")),
    Sketcher.Constraint("Radius", 11, 1.027411),
    Sketcher.Constraint("Radius", 65, 1.019458),
    Sketcher.Constraint("DistanceX", 70, 1, 70, 2, 3.314599),
    Sketcher.Constraint("DistanceY", 7, 3, -1, 1, Q("0.1688 in")),
    Sketcher.Constraint("DistanceX", -1, 1, 13, 3, Q("0.3025 in")),
    Sketcher.Constraint("Radius", 73, 1.017754),
    Sketcher.Constraint("DistanceX", 62, 1, 62, 2, 10.634218),
    Sketcher.Constraint("DistanceY", 10, 2, 10, 1, 2.114569),
    Sketcher.Constraint("DistanceX", 40, 2, -1, 1, 7.1342),
    Sketcher.Constraint("Distance", 12, 4.657679),
    Sketcher.Constraint("DistanceX", 0, 1, 0, 2, 3.217266),
    Sketcher.Constraint("DistanceX", 66, 2, 66, 1, 12.863555),
])
pad1 = body.newObject("PartDesign::Pad", "Pad")
pad1.Profile = sketch1
pad1.Type = "TwoLengths"
pad1.Length = Q("3 in")
pad1.Length2 = Q("3 in")

doc.recompute()
